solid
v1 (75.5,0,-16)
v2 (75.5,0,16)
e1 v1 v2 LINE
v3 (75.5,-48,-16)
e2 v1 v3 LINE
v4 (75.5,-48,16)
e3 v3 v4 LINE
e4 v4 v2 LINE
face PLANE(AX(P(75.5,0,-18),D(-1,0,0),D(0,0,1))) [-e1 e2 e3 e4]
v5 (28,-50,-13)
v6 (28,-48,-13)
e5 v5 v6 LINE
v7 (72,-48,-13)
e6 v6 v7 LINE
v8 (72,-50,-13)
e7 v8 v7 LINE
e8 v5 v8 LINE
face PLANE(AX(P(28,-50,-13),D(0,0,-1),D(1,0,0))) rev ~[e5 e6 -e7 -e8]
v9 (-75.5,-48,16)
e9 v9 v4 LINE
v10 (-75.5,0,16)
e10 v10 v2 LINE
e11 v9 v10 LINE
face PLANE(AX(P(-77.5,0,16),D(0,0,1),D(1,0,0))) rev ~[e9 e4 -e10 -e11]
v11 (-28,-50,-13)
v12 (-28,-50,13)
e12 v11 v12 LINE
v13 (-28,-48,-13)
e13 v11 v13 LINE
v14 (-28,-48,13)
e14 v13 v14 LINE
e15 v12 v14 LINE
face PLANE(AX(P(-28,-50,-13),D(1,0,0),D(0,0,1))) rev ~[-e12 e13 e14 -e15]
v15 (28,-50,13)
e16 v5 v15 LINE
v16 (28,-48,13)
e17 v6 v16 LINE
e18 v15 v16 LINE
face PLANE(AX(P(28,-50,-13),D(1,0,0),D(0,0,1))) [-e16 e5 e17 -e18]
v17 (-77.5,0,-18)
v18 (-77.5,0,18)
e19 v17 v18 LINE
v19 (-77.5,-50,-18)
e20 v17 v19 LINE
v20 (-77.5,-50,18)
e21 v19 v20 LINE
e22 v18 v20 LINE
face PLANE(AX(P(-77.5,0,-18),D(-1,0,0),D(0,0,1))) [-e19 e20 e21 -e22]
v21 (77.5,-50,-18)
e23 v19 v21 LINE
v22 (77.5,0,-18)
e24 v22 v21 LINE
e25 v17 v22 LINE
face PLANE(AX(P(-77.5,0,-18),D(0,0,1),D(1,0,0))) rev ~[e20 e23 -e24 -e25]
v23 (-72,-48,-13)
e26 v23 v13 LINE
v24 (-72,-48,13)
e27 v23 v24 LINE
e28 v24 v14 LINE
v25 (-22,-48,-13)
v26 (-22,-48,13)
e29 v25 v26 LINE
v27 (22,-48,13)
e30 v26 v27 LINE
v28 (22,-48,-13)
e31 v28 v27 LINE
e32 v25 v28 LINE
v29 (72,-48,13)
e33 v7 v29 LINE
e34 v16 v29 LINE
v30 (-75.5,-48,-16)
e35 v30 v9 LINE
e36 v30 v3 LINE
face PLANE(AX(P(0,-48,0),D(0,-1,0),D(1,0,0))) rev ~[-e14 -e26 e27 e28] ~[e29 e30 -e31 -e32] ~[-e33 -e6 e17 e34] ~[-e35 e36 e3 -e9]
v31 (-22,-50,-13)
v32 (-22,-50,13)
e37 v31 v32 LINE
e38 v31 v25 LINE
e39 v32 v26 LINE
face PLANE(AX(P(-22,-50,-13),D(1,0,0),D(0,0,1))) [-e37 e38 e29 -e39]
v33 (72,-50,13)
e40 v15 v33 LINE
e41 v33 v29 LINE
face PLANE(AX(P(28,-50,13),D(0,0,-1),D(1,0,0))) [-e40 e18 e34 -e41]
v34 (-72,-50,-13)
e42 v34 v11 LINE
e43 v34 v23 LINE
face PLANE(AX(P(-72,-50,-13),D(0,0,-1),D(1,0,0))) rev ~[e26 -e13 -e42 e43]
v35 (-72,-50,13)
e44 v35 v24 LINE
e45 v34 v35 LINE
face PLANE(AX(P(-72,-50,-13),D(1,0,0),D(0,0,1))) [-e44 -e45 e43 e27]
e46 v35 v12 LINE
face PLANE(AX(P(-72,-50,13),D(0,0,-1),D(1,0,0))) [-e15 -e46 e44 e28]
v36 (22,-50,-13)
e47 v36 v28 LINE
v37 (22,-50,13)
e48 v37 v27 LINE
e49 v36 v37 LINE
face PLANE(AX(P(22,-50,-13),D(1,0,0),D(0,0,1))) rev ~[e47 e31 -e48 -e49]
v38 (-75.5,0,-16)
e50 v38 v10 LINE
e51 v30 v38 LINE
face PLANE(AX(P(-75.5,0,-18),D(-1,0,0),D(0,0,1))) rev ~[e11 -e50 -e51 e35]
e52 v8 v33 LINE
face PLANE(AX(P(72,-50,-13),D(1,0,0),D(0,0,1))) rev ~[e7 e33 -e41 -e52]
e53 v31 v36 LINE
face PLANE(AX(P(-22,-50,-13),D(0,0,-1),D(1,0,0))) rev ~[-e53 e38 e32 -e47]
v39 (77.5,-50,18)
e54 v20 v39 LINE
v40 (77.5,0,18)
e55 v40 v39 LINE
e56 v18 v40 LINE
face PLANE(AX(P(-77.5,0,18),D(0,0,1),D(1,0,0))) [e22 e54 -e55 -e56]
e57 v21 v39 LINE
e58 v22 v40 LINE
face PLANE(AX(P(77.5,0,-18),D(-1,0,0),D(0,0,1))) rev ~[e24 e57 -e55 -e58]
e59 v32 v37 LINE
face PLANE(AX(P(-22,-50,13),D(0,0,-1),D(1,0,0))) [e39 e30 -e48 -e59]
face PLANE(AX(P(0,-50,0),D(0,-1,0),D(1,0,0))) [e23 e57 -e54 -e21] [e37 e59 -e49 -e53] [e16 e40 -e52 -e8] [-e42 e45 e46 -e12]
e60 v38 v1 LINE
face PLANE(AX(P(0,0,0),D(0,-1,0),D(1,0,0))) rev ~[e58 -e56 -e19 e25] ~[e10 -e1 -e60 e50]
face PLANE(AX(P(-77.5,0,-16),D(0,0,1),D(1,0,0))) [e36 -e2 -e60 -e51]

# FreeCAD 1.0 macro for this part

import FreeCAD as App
import Part
import Sketcher
from FreeCAD import Vector


def faces_at(feature, points):
    """Names of the faces that lie closest to the given points."""
    faces = feature.Shape.Faces
    near = lambda p: min(range(len(faces)), key=lambda i: faces[i].distToShape(Part.Vertex(*p))[0])
    return sorted({f"Face{near(p) + 1}" for p in points})


def add_polygon(sketch, points):
    """Adds a closed chain of lines whose ends are joined by coincident constraints."""
    first, n = sketch.GeometryCount, len(points)
    for a, b in zip(points, points[1:] + points[:1]):
        sketch.addGeometry(Part.LineSegment(App.Vector(*a, 0), App.Vector(*b, 0)), False)
    for i in range(n):
        sketch.addConstraint(Sketcher.Constraint("Coincident", first + i, 2, first + (i + 1) % n, 1))

doc = App.newDocument("Part")
body = doc.addObject("PartDesign::Body", "Body")

# Sketch on XZ plane
sketch1 = body.newObject("Sketcher::SketchObject", "Sketch")
sketch1.AttachmentSupport = (doc.getObject("XZ_Plane"), [""])
sketch1.MapMode = "FlatFace"
add_polygon(sketch1, [(-78, 18), (-78, -18), (78, -18), (78, 18)])  # lines 0-3
sketch1.addConstraint(Sketcher.Constraint("Vertical", 0))
sketch1.addConstraint(Sketcher.Constraint("Horizontal", 1))
sketch1.addConstraint(Sketcher.Constraint("Vertical", 2))
sketch1.addConstraint(Sketcher.Constraint("Horizontal", 3))
sketch1.addConstraint(Sketcher.Constraint("Symmetric", 0, 2, 2, 2, -1, 1))
sketch1.addConstraint(Sketcher.Constraint("DistanceX", 1, 1, 1, 2, 155.0))
sketch1.addConstraint(Sketcher.Constraint("DistanceY", 0, 2, 0, 1, 36.0))
pad1 = body.newObject("PartDesign::Pad", "Pad")
pad1.Profile = sketch1
pad1.Length = 50
doc.recompute()

thickness = body.newObject("PartDesign::Thickness", "Thickness")
thickness.Base = (pad1, faces_at(pad1, [(0, 0, 0)]))
thickness.Value = 2
thickness.Reversed = True
thickness.Join = "Arc"

# Sketch on XZ plane
sketch2 = body.newObject("Sketcher::SketchObject", "Sketch001")
sketch2.AttachmentSupport = (doc.getObject("XZ_Plane"), [""])
sketch2.MapMode = "FlatFace"
sketch2.AttachmentOffset = App.Placement(Vector(0, 0, 50), App.Rotation())
add_polygon(sketch2, [(-22, 13), (-22, -13), (22, -13), (22, 13)])  # lines 0-3
add_polygon(sketch2, [(-72, 13), (-72, -13), (-28, -13), (-28, 13)])  # lines 4-7
add_polygon(sketch2, [(28, 13), (28, -13), (72, -13), (72, 13)])  # lines 8-11
sketch2.addConstraint(Sketcher.Constraint("Vertical", 0))
sketch2.addConstraint(Sketcher.Constraint("Horizontal", 1))
sketch2.addConstraint(Sketcher.Constraint("Vertical", 2))
sketch2.addConstraint(Sketcher.Constraint("Horizontal", 3))
sketch2.addConstraint(Sketcher.Constraint("Vertical", 4))
sketch2.addConstraint(Sketcher.Constraint("Horizontal", 5))
sketch2.addConstraint(Sketcher.Constraint("Vertical", 6))
sketch2.addConstraint(Sketcher.Constraint("Horizontal", 7))
sketch2.addConstraint(Sketcher.Constraint("Vertical", 8))
sketch2.addConstraint(Sketcher.Constraint("Horizontal", 9))
sketch2.addConstraint(Sketcher.Constraint("Vertical", 10))
sketch2.addConstraint(Sketcher.Constraint("Horizontal", 11))
sketch2.addConstraint(Sketcher.Constraint("Symmetric", 0, 2, 2, 2, -1, 1))
sketch2.addConstraint(Sketcher.Constraint("Symmetric", 6, 2, 8, 2, -1, 1))
sketch2.addConstraint(Sketcher.Constraint("Symmetric", 4, 2, 10, 2, -1, 1))
sketch2.addConstraint(Sketcher.Constraint("Horizontal", 1, 2, 4, 2))
sketch2.addConstraint(Sketcher.Constraint("Horizontal", 3, 2, 6, 2))
sketch2.addConstraint(Sketcher.Constraint("Equal", 3, 5))
sketch2.addConstraint(Sketcher.Constraint("DistanceX", 1, 1, 1, 2, 44.0))
sketch2.addConstraint(Sketcher.Constraint("DistanceY", 0, 2, 0, 1, 26.0))
sketch2.addConstraint(Sketcher.Constraint("DistanceX", 4, 2, -1, 1, 72.0))
pocket1 = body.newObject("PartDesign::Pocket", "Pocket")
pocket1.Profile = sketch2
pocket1.Length = 25

doc.recompute()
